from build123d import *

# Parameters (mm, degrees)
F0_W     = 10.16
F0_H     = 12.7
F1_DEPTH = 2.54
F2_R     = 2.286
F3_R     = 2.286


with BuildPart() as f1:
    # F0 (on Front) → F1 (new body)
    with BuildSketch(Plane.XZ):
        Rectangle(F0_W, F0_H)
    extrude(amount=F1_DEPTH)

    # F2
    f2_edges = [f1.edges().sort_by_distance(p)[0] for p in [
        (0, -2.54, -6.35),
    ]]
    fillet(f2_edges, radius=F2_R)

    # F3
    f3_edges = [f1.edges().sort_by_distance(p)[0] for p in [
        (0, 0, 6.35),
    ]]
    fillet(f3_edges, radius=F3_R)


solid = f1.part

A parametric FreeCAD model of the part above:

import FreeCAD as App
import Part
import Sketcher
Q = App.Units.Quantity


def edges_at(feature, points):
    """Names of the edges that pass closest to the given points."""
    edges = feature.Shape.Edges
    near = lambda p: min(range(len(edges)), key=lambda i: edges[i].distToShape(Part.Vertex(*p))[0])
    return sorted({f"Edge{near(p) + 1}" for p in points})

doc = App.newDocument("Part")
params = doc.addObject("Spreadsheet::Sheet", "Params")
for row, (alias, value) in enumerate([
    ("sketch1_width", "0.4 in"),
    ("sketch1_height", "0.5 in"),
    ("pad1_length", "0.1 in"),
    ("fillet_radius", "0.09 in"),
    ("fillet2_radius", "0.09 in"),
], start=1):
    params.set(f"A{row}", alias)
    params.set(f"B{row}", "=" + value)
    params.setAlias(f"B{row}", alias)

body = doc.addObject("PartDesign::Body", "Body")

# Sketch on XZ plane
sketch1 = body.newObject("Sketcher::SketchObject", "Sketch")
sketch1.AttachmentSupport = (doc.getObject("XZ_Plane"), [""])
sketch1.MapMode = "FlatFace"
sketch1.addGeometry(Part.LineSegment(App.Vector(-5.08, 6.35, 0), App.Vector(-5.08, -6.35, 0)), False)
sketch1.addGeometry(Part.LineSegment(App.Vector(-5.08, -6.35, 0), App.Vector(5.08, -6.35, 0)), False)
sketch1.addGeometry(Part.LineSegment(App.Vector(5.08, -6.35, 0), App.Vector(5.08, 6.35, 0)), False)
sketch1.addGeometry(Part.LineSegment(App.Vector(5.08, 6.35, 0), App.Vector(-5.08, 6.35, 0)), False)
sketch1.addConstraint(Sketcher.Constraint("Coincident", 0, 2, 1, 1))
sketch1.addConstraint(Sketcher.Constraint("Coincident", 1, 2, 2, 1))
sketch1.addConstraint(Sketcher.Constraint("Coincident", 2, 2, 3, 1))
sketch1.addConstraint(Sketcher.Constraint("Coincident", 3, 2, 0, 1))
sketch1.addConstraint(Sketcher.Constraint("Vertical", 0))
sketch1.addConstraint(Sketcher.Constraint("Horizontal", 1))
sketch1.addConstraint(Sketcher.Constraint("Vertical", 2))
sketch1.addConstraint(Sketcher.Constraint("Horizontal", 3))
sketch1.addConstraint(Sketcher.Constraint("Symmetric", 0, 2, 2, 2, -1, 1))
sketch1.addConstraint(Sketcher.Constraint("DistanceX", 1, 1, 1, 2, Q("0.4 in")))
sketch1.addConstraint(Sketcher.Constraint("DistanceY", 0, 2, 0, 1, Q("0.5 in")))
sketch1.setExpression("Constraints[9]", "Params.sketch1_width")
sketch1.setExpression("Constraints[10]", "Params.sketch1_height")
pad1 = body.newObject("PartDesign::Pad", "Pad")
pad1.Profile = sketch1
pad1.setExpression("Length", "Params.pad1_length")
doc.recompute()

fillet = body.newObject("PartDesign::Fillet", "Fillet")
fillet.Base = (pad1, edges_at(pad1, [(0, -2.54, -6.35)]))
fillet.setExpression("Radius", "Params.fillet_radius")
doc.recompute()

fillet2 = body.newObject("PartDesign::Fillet", "Fillet001")
fillet2.Base = (fillet, edges_at(fillet, [(0, 0, 6.35)]))
fillet2.setExpression("Radius", "Params.fillet2_radius")

doc.recompute()
